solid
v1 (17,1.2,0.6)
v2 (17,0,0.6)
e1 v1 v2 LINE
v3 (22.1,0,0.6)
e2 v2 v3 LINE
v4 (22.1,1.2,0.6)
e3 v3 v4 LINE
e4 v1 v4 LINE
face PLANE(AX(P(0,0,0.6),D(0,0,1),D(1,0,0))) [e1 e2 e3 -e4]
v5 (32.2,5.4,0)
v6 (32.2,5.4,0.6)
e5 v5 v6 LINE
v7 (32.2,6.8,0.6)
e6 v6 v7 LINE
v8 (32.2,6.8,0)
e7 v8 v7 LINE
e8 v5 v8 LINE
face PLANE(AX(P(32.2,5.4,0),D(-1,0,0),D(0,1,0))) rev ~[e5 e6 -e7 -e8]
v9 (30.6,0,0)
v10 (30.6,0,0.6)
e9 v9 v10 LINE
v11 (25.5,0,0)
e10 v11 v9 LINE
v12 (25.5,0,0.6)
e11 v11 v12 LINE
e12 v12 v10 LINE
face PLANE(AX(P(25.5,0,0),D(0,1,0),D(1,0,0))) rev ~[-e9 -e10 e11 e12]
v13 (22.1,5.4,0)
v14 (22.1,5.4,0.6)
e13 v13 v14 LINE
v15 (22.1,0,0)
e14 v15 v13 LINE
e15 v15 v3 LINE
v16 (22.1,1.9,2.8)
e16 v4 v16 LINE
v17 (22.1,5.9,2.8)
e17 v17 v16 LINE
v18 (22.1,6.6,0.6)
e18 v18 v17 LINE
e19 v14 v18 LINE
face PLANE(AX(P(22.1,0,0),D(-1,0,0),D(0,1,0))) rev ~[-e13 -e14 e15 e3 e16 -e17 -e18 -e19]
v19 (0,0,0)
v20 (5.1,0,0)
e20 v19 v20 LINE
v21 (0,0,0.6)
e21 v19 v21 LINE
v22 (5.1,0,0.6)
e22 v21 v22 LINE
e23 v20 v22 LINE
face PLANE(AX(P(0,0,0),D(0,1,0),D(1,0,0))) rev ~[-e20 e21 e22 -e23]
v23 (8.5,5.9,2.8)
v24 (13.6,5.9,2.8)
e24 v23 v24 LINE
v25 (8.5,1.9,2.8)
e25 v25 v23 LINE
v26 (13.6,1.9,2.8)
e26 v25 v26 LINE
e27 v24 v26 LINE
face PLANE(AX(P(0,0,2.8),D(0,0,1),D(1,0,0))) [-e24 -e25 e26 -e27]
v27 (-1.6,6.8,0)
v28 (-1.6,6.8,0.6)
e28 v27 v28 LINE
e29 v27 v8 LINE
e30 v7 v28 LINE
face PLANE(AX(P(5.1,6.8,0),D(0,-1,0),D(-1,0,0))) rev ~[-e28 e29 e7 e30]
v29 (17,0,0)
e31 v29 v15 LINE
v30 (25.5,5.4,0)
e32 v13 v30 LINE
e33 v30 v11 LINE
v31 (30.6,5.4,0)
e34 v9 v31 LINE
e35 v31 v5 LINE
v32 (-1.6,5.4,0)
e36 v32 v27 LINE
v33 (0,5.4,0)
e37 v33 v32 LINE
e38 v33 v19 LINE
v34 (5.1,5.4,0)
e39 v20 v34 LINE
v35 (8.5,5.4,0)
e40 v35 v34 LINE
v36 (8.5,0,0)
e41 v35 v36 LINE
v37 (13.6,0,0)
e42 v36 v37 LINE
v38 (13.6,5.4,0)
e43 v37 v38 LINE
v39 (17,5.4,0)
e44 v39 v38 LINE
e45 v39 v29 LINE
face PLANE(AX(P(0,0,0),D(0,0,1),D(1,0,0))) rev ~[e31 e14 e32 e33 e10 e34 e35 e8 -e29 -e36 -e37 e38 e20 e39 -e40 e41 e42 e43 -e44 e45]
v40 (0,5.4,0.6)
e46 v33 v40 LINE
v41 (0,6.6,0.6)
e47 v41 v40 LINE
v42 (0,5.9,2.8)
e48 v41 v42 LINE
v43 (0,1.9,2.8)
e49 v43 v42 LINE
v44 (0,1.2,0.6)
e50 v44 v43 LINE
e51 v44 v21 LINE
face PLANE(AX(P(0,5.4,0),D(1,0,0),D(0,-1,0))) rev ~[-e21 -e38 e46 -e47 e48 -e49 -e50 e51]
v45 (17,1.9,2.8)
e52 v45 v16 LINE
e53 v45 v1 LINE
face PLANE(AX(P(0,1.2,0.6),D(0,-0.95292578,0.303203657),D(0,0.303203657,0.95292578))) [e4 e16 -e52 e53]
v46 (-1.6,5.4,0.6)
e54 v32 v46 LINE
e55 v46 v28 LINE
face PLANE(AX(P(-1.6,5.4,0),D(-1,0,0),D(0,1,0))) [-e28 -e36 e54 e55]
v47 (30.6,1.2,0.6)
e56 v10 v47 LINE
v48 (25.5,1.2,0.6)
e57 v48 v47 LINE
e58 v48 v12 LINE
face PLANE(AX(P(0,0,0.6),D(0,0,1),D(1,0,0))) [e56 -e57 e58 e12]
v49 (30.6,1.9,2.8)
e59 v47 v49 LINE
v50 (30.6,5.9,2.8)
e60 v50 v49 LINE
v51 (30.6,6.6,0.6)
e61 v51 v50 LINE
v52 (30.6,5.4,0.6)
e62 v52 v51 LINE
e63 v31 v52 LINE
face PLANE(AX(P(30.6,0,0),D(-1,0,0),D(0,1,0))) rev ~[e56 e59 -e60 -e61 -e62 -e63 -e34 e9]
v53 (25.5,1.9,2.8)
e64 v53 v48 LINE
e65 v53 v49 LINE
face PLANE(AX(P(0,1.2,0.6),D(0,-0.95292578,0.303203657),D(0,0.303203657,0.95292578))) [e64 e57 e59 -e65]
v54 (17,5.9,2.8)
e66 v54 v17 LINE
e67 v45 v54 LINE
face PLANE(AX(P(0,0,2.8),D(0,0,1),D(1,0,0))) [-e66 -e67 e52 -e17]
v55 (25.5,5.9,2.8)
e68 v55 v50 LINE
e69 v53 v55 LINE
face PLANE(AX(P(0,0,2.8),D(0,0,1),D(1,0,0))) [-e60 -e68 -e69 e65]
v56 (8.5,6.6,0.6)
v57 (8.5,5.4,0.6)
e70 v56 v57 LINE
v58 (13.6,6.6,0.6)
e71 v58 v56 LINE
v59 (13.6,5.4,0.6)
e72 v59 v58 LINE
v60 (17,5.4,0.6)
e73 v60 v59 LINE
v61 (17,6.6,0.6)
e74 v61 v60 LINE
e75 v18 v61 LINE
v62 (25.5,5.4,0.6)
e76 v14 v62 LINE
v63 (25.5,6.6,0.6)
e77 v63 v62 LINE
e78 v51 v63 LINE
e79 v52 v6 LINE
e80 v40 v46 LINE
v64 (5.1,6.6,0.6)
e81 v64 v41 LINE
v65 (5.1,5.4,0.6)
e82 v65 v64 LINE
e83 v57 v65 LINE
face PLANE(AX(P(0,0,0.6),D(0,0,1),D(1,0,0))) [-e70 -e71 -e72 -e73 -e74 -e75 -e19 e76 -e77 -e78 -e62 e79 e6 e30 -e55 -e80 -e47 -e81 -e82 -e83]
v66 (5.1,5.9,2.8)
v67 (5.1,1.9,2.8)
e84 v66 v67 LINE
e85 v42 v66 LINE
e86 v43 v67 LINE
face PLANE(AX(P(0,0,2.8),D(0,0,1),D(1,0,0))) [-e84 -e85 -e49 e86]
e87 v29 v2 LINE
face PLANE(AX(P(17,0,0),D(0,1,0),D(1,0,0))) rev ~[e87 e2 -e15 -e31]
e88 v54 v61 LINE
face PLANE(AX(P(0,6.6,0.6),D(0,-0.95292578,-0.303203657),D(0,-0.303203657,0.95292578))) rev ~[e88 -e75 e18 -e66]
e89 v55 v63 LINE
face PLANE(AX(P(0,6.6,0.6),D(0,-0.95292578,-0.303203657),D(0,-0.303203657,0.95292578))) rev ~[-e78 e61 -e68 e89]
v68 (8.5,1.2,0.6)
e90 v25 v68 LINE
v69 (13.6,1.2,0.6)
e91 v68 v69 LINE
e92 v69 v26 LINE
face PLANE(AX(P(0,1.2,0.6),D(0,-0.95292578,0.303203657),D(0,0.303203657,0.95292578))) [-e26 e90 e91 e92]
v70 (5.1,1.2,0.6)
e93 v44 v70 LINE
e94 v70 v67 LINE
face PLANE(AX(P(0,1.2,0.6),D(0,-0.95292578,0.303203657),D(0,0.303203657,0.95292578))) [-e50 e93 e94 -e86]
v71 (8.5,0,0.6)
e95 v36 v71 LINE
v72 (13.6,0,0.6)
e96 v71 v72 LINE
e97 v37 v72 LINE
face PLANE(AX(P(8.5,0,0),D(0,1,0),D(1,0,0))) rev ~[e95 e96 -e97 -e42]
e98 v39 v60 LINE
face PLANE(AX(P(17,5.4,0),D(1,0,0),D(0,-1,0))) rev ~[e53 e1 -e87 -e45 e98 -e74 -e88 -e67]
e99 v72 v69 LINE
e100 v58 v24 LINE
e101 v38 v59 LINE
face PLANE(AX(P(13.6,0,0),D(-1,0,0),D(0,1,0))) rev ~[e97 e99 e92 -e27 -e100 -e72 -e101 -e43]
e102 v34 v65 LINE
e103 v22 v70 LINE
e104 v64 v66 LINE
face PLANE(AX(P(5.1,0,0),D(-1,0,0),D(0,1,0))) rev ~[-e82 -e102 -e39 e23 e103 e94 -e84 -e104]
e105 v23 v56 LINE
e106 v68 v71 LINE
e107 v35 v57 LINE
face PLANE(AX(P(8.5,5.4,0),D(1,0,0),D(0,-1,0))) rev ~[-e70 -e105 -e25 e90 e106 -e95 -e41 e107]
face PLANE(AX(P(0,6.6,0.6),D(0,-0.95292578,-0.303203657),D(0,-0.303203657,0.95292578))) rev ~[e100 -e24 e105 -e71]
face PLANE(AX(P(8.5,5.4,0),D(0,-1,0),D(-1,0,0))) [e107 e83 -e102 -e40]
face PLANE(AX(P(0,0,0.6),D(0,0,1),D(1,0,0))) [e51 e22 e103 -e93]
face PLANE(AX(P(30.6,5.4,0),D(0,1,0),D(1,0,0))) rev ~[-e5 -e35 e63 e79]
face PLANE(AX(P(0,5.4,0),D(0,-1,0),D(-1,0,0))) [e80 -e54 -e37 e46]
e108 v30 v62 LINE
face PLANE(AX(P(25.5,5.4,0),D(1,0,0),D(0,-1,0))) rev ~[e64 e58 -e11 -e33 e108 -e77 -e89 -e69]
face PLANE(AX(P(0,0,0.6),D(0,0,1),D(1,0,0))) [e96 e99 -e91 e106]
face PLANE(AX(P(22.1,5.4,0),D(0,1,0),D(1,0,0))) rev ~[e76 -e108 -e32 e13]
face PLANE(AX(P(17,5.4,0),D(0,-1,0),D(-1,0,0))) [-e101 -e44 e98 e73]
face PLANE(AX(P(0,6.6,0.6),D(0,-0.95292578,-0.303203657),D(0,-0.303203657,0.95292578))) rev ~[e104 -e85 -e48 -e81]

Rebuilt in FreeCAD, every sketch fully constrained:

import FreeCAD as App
import Part
import Sketcher
Q = App.Units.Quantity

doc = App.newDocument("Part")
body = doc.addObject("PartDesign::Body", "Body")

# Sketch on XY plane
sketch1 = doc.addObject("Sketcher::SketchObject", "Sketch")
body.addObject(sketch1)
sketch1.AttachmentSupport = (doc.XY_Plane, [""])
sketch1.MapMode = "FlatFace"
sketch1.addGeometry(Part.LineSegment(App.Vector(0, 5.4, 0), App.Vector(0, 0, 0)), False)
sketch1.addGeometry(Part.LineSegment(App.Vector(0, 0, 0), App.Vector(5.1, 0, 0)), False)
sketch1.addGeometry(Part.LineSegment(App.Vector(5.1, 0, 0), App.Vector(5.1, 5.4, 0)), False)
sketch1.addGeometry(Part.LineSegment(App.Vector(5.1, 5.4, 0), App.Vector(8.5, 5.4, 0)), False)
sketch1.addGeometry(Part.LineSegment(App.Vector(8.5, 5.4, 0), App.Vector(8.5, 0, 0)), False)
sketch1.addGeometry(Part.LineSegment(App.Vector(8.5, 0, 0), App.Vector(13.6, 0, 0)), False)
sketch1.addGeometry(Part.LineSegment(App.Vector(13.6, 0, 0), App.Vector(13.6, 5.4, 0)), False)
sketch1.addGeometry(Part.LineSegment(App.Vector(13.6, 5.4, 0), App.Vector(17, 5.4, 0)), False)
sketch1.addGeometry(Part.LineSegment(App.Vector(17, 5.4, 0), App.Vector(17, 0, 0)), False)
sketch1.addGeometry(Part.LineSegment(App.Vector(17, 0, 0), App.Vector(22.1, 0, 0)), False)
sketch1.addGeometry(Part.LineSegment(App.Vector(22.1, 0, 0), App.Vector(22.1, 5.4, 0)), False)
sketch1.addGeometry(Part.LineSegment(App.Vector(22.1, 5.4, 0), App.Vector(25.5, 5.4, 0)), False)
sketch1.addGeometry(Part.LineSegment(App.Vector(25.5, 5.4, 0), App.Vector(25.5, 0, 0)), False)
sketch1.addGeometry(Part.LineSegment(App.Vector(25.5, 0, 0), App.Vector(30.6, 0, 0)), False)
sketch1.addGeometry(Part.LineSegment(App.Vector(30.6, 0, 0), App.Vector(30.6, 5.4, 0)), False)
sketch1.addGeometry(Part.LineSegment(App.Vector(30.6, 5.4, 0), App.Vector(32.2, 5.4, 0)), False)
sketch1.addGeometry(Part.LineSegment(App.Vector(32.2, 5.4, 0), App.Vector(32.2, 6.8, 0)), False)
sketch1.addGeometry(Part.LineSegment(App.Vector(32.2, 6.8, 0), App.Vector(-1.6, 6.8, 0)), False)
sketch1.addGeometry(Part.LineSegment(App.Vector(-1.6, 6.8, 0), App.Vector(-1.6, 5.4, 0)), False)
sketch1.addGeometry(Part.LineSegment(App.Vector(-1.6, 5.4, 0), App.Vector(0, 5.4, 0)), False)
sketch1.addConstraint(Sketcher.Constraint("Coincident", 0, 2, 1, 1))
sketch1.addConstraint(Sketcher.Constraint("Coincident", 1, 2, 2, 1))
sketch1.addConstraint(Sketcher.Constraint("Coincident", 2, 2, 3, 1))
sketch1.addConstraint(Sketcher.Constraint("Coincident", 3, 2, 4, 1))
sketch1.addConstraint(Sketcher.Constraint("Coincident", 4, 2, 5, 1))
sketch1.addConstraint(Sketcher.Constraint("Coincident", 5, 2, 6, 1))
sketch1.addConstraint(Sketcher.Constraint("Coincident", 6, 2, 7, 1))
sketch1.addConstraint(Sketcher.Constraint("Coincident", 7, 2, 8, 1))
sketch1.addConstraint(Sketcher.Constraint("Coincident", 8, 2, 9, 1))
sketch1.addConstraint(Sketcher.Constraint("Coincident", 9, 2, 10, 1))
sketch1.addConstraint(Sketcher.Constraint("Coincident", 10, 2, 11, 1))
sketch1.addConstraint(Sketcher.Constraint("Coincident", 11, 2, 12, 1))
sketch1.addConstraint(Sketcher.Constraint("Coincident", 12, 2, 13, 1))
sketch1.addConstraint(Sketcher.Constraint("Coincident", 13, 2, 14, 1))
sketch1.addConstraint(Sketcher.Constraint("Coincident", 14, 2, 15, 1))
sketch1.addConstraint(Sketcher.Constraint("Coincident", 15, 2, 16, 1))
sketch1.addConstraint(Sketcher.Constraint("Coincident", 16, 2, 17, 1))
sketch1.addConstraint(Sketcher.Constraint("Coincident", 17, 2, 18, 1))
sketch1.addConstraint(Sketcher.Constraint("Coincident", 18, 2, 19, 1))
sketch1.addConstraint(Sketcher.Constraint("Coincident", 19, 2, 0, 1))
sketch1.addConstraint(Sketcher.Constraint("Vertical", 0))
sketch1.addConstraint(Sketcher.Constraint("Horizontal", 1))
sketch1.addConstraint(Sketcher.Constraint("Vertical", 2))
sketch1.addConstraint(Sketcher.Constraint("Horizontal", 3))
sketch1.addConstraint(Sketcher.Constraint("Vertical", 4))
sketch1.addConstraint(Sketcher.Constraint("Horizontal", 5))
sketch1.addConstraint(Sketcher.Constraint("Vertical", 6))
sketch1.addConstraint(Sketcher.Constraint("Horizontal", 7))
sketch1.addConstraint(Sketcher.Constraint("Vertical", 8))
sketch1.addConstraint(Sketcher.Constraint("Horizontal", 9))
sketch1.addConstraint(Sketcher.Constraint("Vertical", 10))
sketch1.addConstraint(Sketcher.Constraint("Horizontal", 11))
sketch1.addConstraint(Sketcher.Constraint("Vertical", 12))
sketch1.addConstraint(Sketcher.Constraint("Horizontal", 13))
sketch1.addConstraint(Sketcher.Constraint("Vertical", 14))
sketch1.addConstraint(Sketcher.Constraint("Horizontal", 15))
sketch1.addConstraint(Sketcher.Constraint("Vertical", 16))
sketch1.addConstraint(Sketcher.Constraint("Horizontal", 17))
sketch1.addConstraint(Sketcher.Constraint("Vertical", 18))
sketch1.addConstraint(Sketcher.Constraint("Horizontal", 19))
sketch1.addConstraint(Sketcher.Constraint("Coincident", 0, 2, -1, 1))
sketch1.addConstraint(Sketcher.Constraint("PointOnObject", 4, 2, -1))
sketch1.addConstraint(Sketcher.Constraint("PointOnObject", 8, 2, -1))
sketch1.addConstraint(Sketcher.Constraint("PointOnObject", 12, 2, -1))
sketch1.addConstraint(Sketcher.Constraint("Horizontal", 3, 2, 6, 2))
sketch1.addConstraint(Sketcher.Constraint("Horizontal", 7, 2, 10, 2))
sketch1.addConstraint(Sketcher.Constraint("Horizontal", 11, 2, 14, 2))
sketch1.addConstraint(Sketcher.Constraint("Horizontal", 15, 2, 18, 2))
sketch1.addConstraint(Sketcher.Constraint("Equal", 1, 5))
sketch1.addConstraint(Sketcher.Constraint("Equal", 3, 7))
sketch1.addConstraint(Sketcher.Constraint("Equal", 5, 9))
sketch1.addConstraint(Sketcher.Constraint("Equal", 7, 11))
sketch1.addConstraint(Sketcher.Constraint("Equal", 9, 13))
sketch1.addConstraint(Sketcher.Constraint("Equal", 15, 19))
sketch1.addConstraint(Sketcher.Constraint("DistanceX", 1, 1, 1, 2, Q("5.1 mm")))
sketch1.addConstraint(Sketcher.Constraint("DistanceX", 15, 1, 15, 2, Q("1.6 mm")))
sketch1.addConstraint(Sketcher.Constraint("DistanceY", 16, 1, 16, 2, Q("1.4 mm")))
sketch1.addConstraint(Sketcher.Constraint("DistanceX", -1, 1, 3, 2, Q("8.5 mm")))
sketch1.addConstraint(Sketcher.Constraint("DistanceY", -1, 1, 16, 2, Q("6.8 mm")))
pad1 = doc.addObject("PartDesign::Pad", "Pad")
body.addObject(pad1)
pad1.Profile = sketch1
pad1.Length = 0.6

# Sketch on XY plane
sketch2 = doc.addObject("Sketcher::SketchObject", "Sketch001")
body.addObject(sketch2)
sketch2.AttachmentSupport = (doc.XY_Plane, [""])
sketch2.MapMode = "FlatFace"
sketch2.AttachmentOffset = App.Placement(App.Vector(0, 0, 0.6), App.Rotation())
sketch2.addGeometry(Part.LineSegment(App.Vector(0, 7, 0), App.Vector(0, 1, 0)), False)
sketch2.addGeometry(Part.LineSegment(App.Vector(0, 1, 0), App.Vector(5, 1, 0)), False)
sketch2.addGeometry(Part.LineSegment(App.Vector(5, 1, 0), App.Vector(5, 7, 0)), False)
sketch2.addGeometry(Part.LineSegment(App.Vector(5, 7, 0), App.Vector(0, 7, 0)), False)
sketch2.addGeometry(Part.LineSegment(App.Vector(8, 7, 0), App.Vector(8, 1, 0)), False)
sketch2.addGeometry(Part.LineSegment(App.Vector(8, 1, 0), App.Vector(14, 1, 0)), False)
sketch2.addGeometry(Part.LineSegment(App.Vector(14, 1, 0), App.Vector(14, 7, 0)), False)
sketch2.addGeometry(Part.LineSegment(App.Vector(14, 7, 0), App.Vector(8, 7, 0)), False)
sketch2.addGeometry(Part.LineSegment(App.Vector(17, 7, 0), App.Vector(17, 1, 0)), False)
sketch2.addGeometry(Part.LineSegment(App.Vector(17, 1, 0), App.Vector(22, 1, 0)), False)
sketch2.addGeometry(Part.LineSegment(App.Vector(22, 1, 0), App.Vector(22, 7, 0)), False)
sketch2.addGeometry(Part.LineSegment(App.Vector(22, 7, 0), App.Vector(17, 7, 0)), False)
sketch2.addGeometry(Part.LineSegment(App.Vector(26, 7, 0), App.Vector(26, 1, 0)), False)
sketch2.addGeometry(Part.LineSegment(App.Vector(26, 1, 0), App.Vector(31, 1, 0)), False)
sketch2.addGeometry(Part.LineSegment(App.Vector(31, 1, 0), App.Vector(31, 7, 0)), False)
sketch2.addGeometry(Part.LineSegment(App.Vector(31, 7, 0), App.Vector(26, 7, 0)), False)
sketch2.addConstraint(Sketcher.Constraint("Coincident", 0, 2, 1, 1))
sketch2.addConstraint(Sketcher.Constraint("Coincident", 1, 2, 2, 1))
sketch2.addConstraint(Sketcher.Constraint("Coincident", 2, 2, 3, 1))
sketch2.addConstraint(Sketcher.Constraint("Coincident", 3, 2, 0, 1))
sketch2.addConstraint(Sketcher.Constraint("Coincident", 4, 2, 5, 1))
sketch2.addConstraint(Sketcher.Constraint("Coincident", 5, 2, 6, 1))
sketch2.addConstraint(Sketcher.Constraint("Coincident", 6, 2, 7, 1))
sketch2.addConstraint(Sketcher.Constraint("Coincident", 7, 2, 4, 1))
sketch2.addConstraint(Sketcher.Constraint("Coincident", 8, 2, 9, 1))
sketch2.addConstraint(Sketcher.Constraint("Coincident", 9, 2, 10, 1))
sketch2.addConstraint(Sketcher.Constraint("Coincident", 10, 2, 11, 1))
sketch2.addConstraint(Sketcher.Constraint("Coincident", 11, 2, 8, 1))
sketch2.addConstraint(Sketcher.Constraint("Coincident", 12, 2, 13, 1))
sketch2.addConstraint(Sketcher.Constraint("Coincident", 13, 2, 14, 1))
sketch2.addConstraint(Sketcher.Constraint("Coincident", 14, 2, 15, 1))
sketch2.addConstraint(Sketcher.Constraint("Coincident", 15, 2, 12, 1))
sketch2.addConstraint(Sketcher.Constraint("Vertical", 0))
sketch2.addConstraint(Sketcher.Constraint("Horizontal", 1))
sketch2.addConstraint(Sketcher.Constraint("Vertical", 2))
sketch2.addConstraint(Sketcher.Constraint("Horizontal", 3))
sketch2.addConstraint(Sketcher.Constraint("Vertical", 4))
sketch2.addConstraint(Sketcher.Constraint("Horizontal", 5))
sketch2.addConstraint(Sketcher.Constraint("Vertical", 6))
sketch2.addConstraint(Sketcher.Constraint("Horizontal", 7))
sketch2.addConstraint(Sketcher.Constraint("Vertical", 8))
sketch2.addConstraint(Sketcher.Constraint("Horizontal", 9))
sketch2.addConstraint(Sketcher.Constraint("Vertical", 10))
sketch2.addConstraint(Sketcher.Constraint("Horizontal", 11))
sketch2.addConstraint(Sketcher.Constraint("Vertical", 12))
sketch2.addConstraint(Sketcher.Constraint("Horizontal", 13))
sketch2.addConstraint(Sketcher.Constraint("Vertical", 14))
sketch2.addConstraint(Sketcher.Constraint("Horizontal", 15))
sketch2.addConstraint(Sketcher.Constraint("PointOnObject", 0, 2, -2))
sketch2.addConstraint(Sketcher.Constraint("Horizontal", 1, 2, 4, 2))
sketch2.addConstraint(Sketcher.Constraint("Horizontal", 3, 2, 6, 2))
sketch2.addConstraint(Sketcher.Constraint("Horizontal", 5, 2, 8, 2))
sketch2.addConstraint(Sketcher.Constraint("Horizontal", 7, 2, 10, 2))
sketch2.addConstraint(Sketcher.Constraint("Horizontal", 9, 2, 12, 2))
sketch2.addConstraint(Sketcher.Constraint("Horizontal", 11, 2, 14, 2))
sketch2.addConstraint(Sketcher.Constraint("Equal", 3, 5))
sketch2.addConstraint(Sketcher.Constraint("Equal", 7, 9))
sketch2.addConstraint(Sketcher.Constraint("Equal", 11, 13))
sketch2.addConstraint(Sketcher.Constraint("DistanceY", 0, 2, 0, 1, Q("5.4 mm")))
sketch2.addConstraint(Sketcher.Constraint("DistanceX", 1, 1, 1, 2, Q("5.1 mm")))
sketch2.addConstraint(Sketcher.Constraint("DistanceX", -1, 1, 8, 2, Q("17 mm")))
sketch2.addConstraint(Sketcher.Constraint("DistanceY", -1, 1, 0, 2, Q("1.2 mm")))
sketch2.addConstraint(Sketcher.Constraint("DistanceX", -1, 1, 4, 2, Q("8.5 mm")))
sketch2.addConstraint(Sketcher.Constraint("DistanceX", -1, 1, 12, 2, Q("25.5 mm")))
pad2 = doc.addObject("PartDesign::Pad", "Pad001")
body.addObject(pad2)
pad2.Profile = sketch2
pad2.Length = 2.2

# Sketch on YZ plane
sketch3 = doc.addObject("Sketcher::SketchObject", "Sketch002")
body.addObject(sketch3)
sketch3.AttachmentSupport = (doc.YZ_Plane, [""])
sketch3.MapMode = "FlatFace"
sketch3.addGeometry(Part.LineSegment(App.Vector(1.9, 2.8, 0), App.Vector(1.2, 0.6, 0)), False)
sketch3.addGeometry(Part.LineSegment(App.Vector(1.2, 0.6, 0), App.Vector(1.2, 2.8, 0)), False)
sketch3.addGeometry(Part.LineSegment(App.Vector(1.2, 2.8, 0), App.Vector(1.9, 2.8, 0)), False)
sketch3.addGeometry(Part.LineSegment(App.Vector(6.6, 0.6, 0), App.Vector(5.9, 2.8, 0)), False)
sketch3.addGeometry(Part.LineSegment(App.Vector(5.9, 2.8, 0), App.Vector(6.6, 2.8, 0)), False)
sketch3.addGeometry(Part.LineSegment(App.Vector(6.6, 2.8, 0), App.Vector(6.6, 0.6, 0)), False)
sketch3.addConstraint(Sketcher.Constraint("Coincident", 0, 2, 1, 1))
sketch3.addConstraint(Sketcher.Constraint("Coincident", 1, 2, 2, 1))
sketch3.addConstraint(Sketcher.Constraint("Coincident", 2, 2, 0, 1))
sketch3.addConstraint(Sketcher.Constraint("Coincident", 3, 2, 4, 1))
sketch3.addConstraint(Sketcher.Constraint("Coincident", 4, 2, 5, 1))
sketch3.addConstraint(Sketcher.Constraint("Coincident", 5, 2, 3, 1))
sketch3.addConstraint(Sketcher.Constraint("Vertical", 1))
sketch3.addConstraint(Sketcher.Constraint("Horizontal", 2))
sketch3.addConstraint(Sketcher.Constraint("Horizontal", 4))
sketch3.addConstraint(Sketcher.Constraint("Vertical", 5))
sketch3.addConstraint(Sketcher.Constraint("Horizontal", 2, 2, 3, 2))
sketch3.addConstraint(Sketcher.Constraint("Horizontal", 0, 2, 5, 2))
sketch3.addConstraint(Sketcher.Constraint("Equal", 2, 4))
sketch3.addConstraint(Sketcher.Constraint("DistanceX", 2, 2, 3, 2, Q("4 mm")))
sketch3.addConstraint(Sketcher.Constraint("DistanceX", 2, 1, 2, 2, Q("0.7 mm")))
sketch3.addConstraint(Sketcher.Constraint("DistanceY", 1, 1, 1, 2, Q("2.2 mm")))
sketch3.addConstraint(Sketcher.Constraint("DistanceX", -1, 1, 0, 2, Q("1.2 mm")))
sketch3.addConstraint(Sketcher.Constraint("DistanceY", -1, 1, 0, 2, Q("0.6 mm")))
pocket1 = doc.addObject("PartDesign::Pocket", "Pocket")
body.addObject(pocket1)
pocket1.Profile = sketch3
pocket1.Type = "ThroughAll"
pocket1.Reversed = True

doc.recompute()
